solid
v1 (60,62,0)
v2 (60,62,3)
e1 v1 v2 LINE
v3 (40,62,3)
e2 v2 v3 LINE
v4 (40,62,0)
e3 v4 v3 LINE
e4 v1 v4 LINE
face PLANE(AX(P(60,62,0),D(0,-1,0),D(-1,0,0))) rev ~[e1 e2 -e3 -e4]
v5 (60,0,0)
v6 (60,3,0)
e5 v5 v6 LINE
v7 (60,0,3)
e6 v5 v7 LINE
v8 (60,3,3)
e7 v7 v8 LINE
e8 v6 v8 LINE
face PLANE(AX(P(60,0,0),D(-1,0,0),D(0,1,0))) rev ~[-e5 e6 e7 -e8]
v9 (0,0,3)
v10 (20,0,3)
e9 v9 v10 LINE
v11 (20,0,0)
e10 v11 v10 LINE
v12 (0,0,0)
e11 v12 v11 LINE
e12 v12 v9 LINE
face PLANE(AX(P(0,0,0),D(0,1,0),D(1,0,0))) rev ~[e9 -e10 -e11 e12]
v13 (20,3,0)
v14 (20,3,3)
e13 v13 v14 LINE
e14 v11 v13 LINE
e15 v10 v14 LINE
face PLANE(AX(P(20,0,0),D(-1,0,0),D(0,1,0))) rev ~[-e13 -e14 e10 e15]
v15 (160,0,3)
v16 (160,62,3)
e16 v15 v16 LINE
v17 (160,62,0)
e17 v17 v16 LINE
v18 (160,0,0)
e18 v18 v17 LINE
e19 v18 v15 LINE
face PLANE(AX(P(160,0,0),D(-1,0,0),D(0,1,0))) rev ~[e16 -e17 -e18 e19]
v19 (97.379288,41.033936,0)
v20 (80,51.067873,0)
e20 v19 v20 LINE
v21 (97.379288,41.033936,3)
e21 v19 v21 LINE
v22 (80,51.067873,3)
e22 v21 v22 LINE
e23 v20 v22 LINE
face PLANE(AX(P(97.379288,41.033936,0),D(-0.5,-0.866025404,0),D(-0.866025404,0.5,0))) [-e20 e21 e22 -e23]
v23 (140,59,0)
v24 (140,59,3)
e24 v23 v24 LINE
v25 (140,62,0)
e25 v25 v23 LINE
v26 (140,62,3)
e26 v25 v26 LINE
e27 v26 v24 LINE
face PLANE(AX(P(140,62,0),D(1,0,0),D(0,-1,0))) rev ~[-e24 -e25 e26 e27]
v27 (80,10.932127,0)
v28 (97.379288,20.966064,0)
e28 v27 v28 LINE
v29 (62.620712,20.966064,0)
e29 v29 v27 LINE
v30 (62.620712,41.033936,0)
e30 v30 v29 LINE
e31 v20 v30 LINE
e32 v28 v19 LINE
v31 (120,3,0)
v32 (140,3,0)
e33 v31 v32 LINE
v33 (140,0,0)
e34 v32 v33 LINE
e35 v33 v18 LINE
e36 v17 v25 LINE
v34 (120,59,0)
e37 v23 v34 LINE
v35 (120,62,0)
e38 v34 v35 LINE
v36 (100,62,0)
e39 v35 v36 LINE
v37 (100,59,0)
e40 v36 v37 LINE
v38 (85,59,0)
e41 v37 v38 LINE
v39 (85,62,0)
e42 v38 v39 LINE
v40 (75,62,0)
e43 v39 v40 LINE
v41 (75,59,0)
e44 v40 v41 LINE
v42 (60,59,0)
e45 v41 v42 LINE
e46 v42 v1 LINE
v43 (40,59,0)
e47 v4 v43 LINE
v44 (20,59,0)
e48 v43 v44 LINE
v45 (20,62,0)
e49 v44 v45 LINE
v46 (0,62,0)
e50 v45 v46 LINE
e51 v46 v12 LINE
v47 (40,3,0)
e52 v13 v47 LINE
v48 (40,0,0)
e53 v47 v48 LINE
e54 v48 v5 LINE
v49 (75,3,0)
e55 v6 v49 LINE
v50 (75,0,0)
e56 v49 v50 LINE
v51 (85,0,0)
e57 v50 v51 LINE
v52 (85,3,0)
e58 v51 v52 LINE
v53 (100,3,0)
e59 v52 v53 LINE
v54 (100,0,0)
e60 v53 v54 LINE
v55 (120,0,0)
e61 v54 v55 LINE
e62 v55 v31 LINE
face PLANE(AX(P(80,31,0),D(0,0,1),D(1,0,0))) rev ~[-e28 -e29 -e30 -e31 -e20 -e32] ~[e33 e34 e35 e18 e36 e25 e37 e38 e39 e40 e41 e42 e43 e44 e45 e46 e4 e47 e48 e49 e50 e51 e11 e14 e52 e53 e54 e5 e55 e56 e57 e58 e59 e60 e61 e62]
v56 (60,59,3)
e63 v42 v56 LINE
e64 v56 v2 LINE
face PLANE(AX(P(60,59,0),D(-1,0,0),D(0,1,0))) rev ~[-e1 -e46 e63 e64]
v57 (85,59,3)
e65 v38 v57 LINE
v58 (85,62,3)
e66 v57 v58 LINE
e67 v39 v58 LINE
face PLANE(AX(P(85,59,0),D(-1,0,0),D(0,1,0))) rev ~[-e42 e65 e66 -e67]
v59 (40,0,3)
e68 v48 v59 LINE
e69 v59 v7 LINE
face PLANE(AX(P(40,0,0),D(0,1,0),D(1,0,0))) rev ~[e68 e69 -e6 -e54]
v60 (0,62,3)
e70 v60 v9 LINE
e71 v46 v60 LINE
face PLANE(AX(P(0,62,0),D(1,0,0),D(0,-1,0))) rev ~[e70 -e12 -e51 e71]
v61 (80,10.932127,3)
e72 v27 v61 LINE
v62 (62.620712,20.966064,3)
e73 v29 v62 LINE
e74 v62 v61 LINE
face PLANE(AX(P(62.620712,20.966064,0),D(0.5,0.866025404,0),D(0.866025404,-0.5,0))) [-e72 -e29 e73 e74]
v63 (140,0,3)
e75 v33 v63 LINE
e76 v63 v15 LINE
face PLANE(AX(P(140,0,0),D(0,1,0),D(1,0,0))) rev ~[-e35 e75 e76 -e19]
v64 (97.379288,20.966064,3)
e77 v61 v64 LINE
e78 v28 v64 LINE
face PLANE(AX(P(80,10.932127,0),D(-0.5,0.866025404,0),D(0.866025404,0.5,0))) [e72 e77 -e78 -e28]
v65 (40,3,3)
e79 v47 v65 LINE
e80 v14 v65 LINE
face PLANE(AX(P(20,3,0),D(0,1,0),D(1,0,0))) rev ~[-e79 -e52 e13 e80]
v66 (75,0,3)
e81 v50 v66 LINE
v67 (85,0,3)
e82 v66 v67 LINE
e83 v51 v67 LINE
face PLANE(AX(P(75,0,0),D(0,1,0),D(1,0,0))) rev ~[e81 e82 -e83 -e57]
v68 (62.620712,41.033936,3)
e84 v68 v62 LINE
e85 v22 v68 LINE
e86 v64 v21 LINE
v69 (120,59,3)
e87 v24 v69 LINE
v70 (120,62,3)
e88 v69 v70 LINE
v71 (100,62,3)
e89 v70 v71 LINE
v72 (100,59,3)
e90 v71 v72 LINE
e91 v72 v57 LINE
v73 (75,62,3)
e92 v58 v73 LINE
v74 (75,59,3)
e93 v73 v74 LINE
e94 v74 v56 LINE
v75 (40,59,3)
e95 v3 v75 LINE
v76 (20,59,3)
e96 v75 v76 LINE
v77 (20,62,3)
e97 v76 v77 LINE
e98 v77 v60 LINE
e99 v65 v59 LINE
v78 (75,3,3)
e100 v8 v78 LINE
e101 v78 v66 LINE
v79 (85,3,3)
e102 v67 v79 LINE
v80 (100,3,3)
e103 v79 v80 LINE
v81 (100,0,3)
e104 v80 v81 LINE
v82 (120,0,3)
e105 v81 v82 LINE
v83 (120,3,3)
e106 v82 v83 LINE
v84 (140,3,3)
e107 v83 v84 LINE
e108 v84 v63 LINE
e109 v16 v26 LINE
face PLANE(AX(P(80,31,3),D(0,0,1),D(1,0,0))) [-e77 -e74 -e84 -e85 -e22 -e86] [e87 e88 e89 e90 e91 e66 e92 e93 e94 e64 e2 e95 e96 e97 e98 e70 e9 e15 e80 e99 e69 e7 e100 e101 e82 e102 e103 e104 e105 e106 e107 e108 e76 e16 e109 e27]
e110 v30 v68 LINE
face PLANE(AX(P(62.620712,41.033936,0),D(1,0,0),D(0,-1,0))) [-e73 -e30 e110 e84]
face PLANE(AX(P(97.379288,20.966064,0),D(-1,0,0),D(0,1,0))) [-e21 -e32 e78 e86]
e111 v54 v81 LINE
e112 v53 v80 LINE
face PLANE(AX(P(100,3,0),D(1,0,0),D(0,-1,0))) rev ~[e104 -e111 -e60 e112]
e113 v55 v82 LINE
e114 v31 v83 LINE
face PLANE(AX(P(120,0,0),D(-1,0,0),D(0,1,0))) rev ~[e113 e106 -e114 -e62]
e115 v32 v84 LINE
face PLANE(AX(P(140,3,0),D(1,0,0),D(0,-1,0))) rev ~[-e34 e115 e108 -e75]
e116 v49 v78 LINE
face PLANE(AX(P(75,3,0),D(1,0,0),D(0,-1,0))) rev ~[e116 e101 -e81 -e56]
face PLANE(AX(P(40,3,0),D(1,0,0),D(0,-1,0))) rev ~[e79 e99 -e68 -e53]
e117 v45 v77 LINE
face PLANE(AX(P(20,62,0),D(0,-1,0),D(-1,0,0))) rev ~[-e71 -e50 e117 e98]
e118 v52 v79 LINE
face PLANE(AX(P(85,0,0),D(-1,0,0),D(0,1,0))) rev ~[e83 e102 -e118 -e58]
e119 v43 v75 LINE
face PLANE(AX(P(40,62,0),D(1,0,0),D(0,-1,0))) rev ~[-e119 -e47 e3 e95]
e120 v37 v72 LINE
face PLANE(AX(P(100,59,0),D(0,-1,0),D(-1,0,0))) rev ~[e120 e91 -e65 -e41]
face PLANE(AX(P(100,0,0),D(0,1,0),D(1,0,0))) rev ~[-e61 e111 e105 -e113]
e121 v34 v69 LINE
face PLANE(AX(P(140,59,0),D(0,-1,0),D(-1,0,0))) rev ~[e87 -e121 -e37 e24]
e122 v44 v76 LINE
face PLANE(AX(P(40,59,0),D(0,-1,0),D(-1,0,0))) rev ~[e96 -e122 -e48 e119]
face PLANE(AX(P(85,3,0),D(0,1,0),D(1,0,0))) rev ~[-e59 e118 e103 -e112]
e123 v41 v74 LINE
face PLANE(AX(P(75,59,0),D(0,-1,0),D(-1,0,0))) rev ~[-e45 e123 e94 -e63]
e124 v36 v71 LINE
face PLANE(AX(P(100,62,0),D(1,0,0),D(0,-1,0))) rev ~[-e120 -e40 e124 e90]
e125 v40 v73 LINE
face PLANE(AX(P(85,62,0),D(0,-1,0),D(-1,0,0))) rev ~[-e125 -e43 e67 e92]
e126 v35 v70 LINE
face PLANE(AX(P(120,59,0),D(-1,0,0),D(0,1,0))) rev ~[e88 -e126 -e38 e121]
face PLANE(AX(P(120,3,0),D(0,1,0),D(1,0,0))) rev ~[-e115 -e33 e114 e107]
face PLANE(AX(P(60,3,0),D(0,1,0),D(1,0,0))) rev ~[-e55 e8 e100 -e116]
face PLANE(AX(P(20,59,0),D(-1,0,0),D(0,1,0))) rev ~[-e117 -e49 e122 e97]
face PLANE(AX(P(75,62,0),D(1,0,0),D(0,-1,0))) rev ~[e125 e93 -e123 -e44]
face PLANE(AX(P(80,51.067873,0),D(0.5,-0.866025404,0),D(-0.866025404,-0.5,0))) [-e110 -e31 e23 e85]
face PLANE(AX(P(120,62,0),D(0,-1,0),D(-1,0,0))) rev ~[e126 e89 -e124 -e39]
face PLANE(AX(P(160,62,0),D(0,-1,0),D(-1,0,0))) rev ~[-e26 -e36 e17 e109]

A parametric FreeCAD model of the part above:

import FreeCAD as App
import Part
import Sketcher
Q = App.Units.Quantity


def add_polygon(sketch, points):
    """Adds a closed chain of lines whose ends are joined by coincident constraints."""
    first, n = sketch.GeometryCount, len(points)
    for a, b in zip(points, points[1:] + points[:1]):
        sketch.addGeometry(Part.LineSegment(App.Vector(*a, 0), App.Vector(*b, 0)), False)
    for i in range(n):
        sketch.addConstraint(Sketcher.Constraint("Coincident", first + i, 2, first + (i + 1) % n, 1))

doc = App.newDocument("Part")
params = doc.addObject("Spreadsheet::Sheet", "Params")
for row, (alias, value) in enumerate([
    ("sketch1_width", "20 mm"),
    ("sketch1_width2", "15 mm"),
    ("sketch1_width3", "10 mm"),
    ("sketch1_height", "3 mm"),
    ("sketch1_height2", "62 mm"),
    ("pad1_length", "3 mm"),
], start=1):
    params.set(f"A{row}", alias)
    params.set(f"B{row}", "=" + value)
    params.setAlias(f"B{row}", alias)

body = doc.addObject("PartDesign::Body", "Body")

# Sketch on XY plane
sketch1 = body.newObject("Sketcher::SketchObject", "Sketch")
sketch1.AttachmentSupport = (doc.getObject("XY_Plane"), [""])
sketch1.MapMode = "FlatFace"
add_polygon(sketch1, [(20, 3), (40, 3), (40, 0), (60, 0), (60, 3), (75, 3), (75, 0), (85, 0), (85, 3), (100, 3), (100, 0), (120, 0), (120, 3), (140, 3), (140, 0), (160, 0), (160, 62), (140, 62), (140, 59), (120, 59), (120, 62), (100, 62), (100, 59), (85, 59), (85, 62), (75, 62), (75, 59), (60, 59), (60, 62), (40, 62), (40, 59), (20, 59), (20, 62), (0, 62), (0, 0), (20, 0)])  # lines 0-35
add_polygon(sketch1, [(62.620712, 41.033936), (80, 51.067873), (97.379288, 41.033936), (97.379288, 20.966064), (80, 10.932127), (62.620712, 20.966064)])  # lines 36-41
sketch1.addConstraint(Sketcher.Constraint("Horizontal", 0))
sketch1.addConstraint(Sketcher.Constraint("Vertical", 1))
sketch1.addConstraint(Sketcher.Constraint("Horizontal", 2))
sketch1.addConstraint(Sketcher.Constraint("Vertical", 3))
sketch1.addConstraint(Sketcher.Constraint("Horizontal", 4))
sketch1.addConstraint(Sketcher.Constraint("Vertical", 5))
sketch1.addConstraint(Sketcher.Constraint("Horizontal", 6))
sketch1.addConstraint(Sketcher.Constraint("Vertical", 7))
sketch1.addConstraint(Sketcher.Constraint("Horizontal", 8))
sketch1.addConstraint(Sketcher.Constraint("Vertical", 9))
sketch1.addConstraint(Sketcher.Constraint("Horizontal", 10))
sketch1.addConstraint(Sketcher.Constraint("Vertical", 11))
sketch1.addConstraint(Sketcher.Constraint("Horizontal", 12))
sketch1.addConstraint(Sketcher.Constraint("Vertical", 13))
sketch1.addConstraint(Sketcher.Constraint("Horizontal", 14))
sketch1.addConstraint(Sketcher.Constraint("Vertical", 15))
sketch1.addConstraint(Sketcher.Constraint("Horizontal", 16))
sketch1.addConstraint(Sketcher.Constraint("Vertical", 17))
sketch1.addConstraint(Sketcher.Constraint("Horizontal", 18))
sketch1.addConstraint(Sketcher.Constraint("Vertical", 19))
sketch1.addConstraint(Sketcher.Constraint("Horizontal", 20))
sketch1.addConstraint(Sketcher.Constraint("Vertical", 21))
sketch1.addConstraint(Sketcher.Constraint("Horizontal", 22))
sketch1.addConstraint(Sketcher.Constraint("Vertical", 23))
sketch1.addConstraint(Sketcher.Constraint("Horizontal", 24))
sketch1.addConstraint(Sketcher.Constraint("Vertical", 25))
sketch1.addConstraint(Sketcher.Constraint("Horizontal", 26))
sketch1.addConstraint(Sketcher.Constraint("Vertical", 27))
sketch1.addConstraint(Sketcher.Constraint("Horizontal", 28))
sketch1.addConstraint(Sketcher.Constraint("Vertical", 29))
sketch1.addConstraint(Sketcher.Constraint("Horizontal", 30))
sketch1.addConstraint(Sketcher.Constraint("Vertical", 31))
sketch1.addConstraint(Sketcher.Constraint("Horizontal", 32))
sketch1.addConstraint(Sketcher.Constraint("Vertical", 33))
sketch1.addConstraint(Sketcher.Constraint("Horizontal", 34))
sketch1.addConstraint(Sketcher.Constraint("Vertical", 35))
sketch1.addConstraint(Sketcher.Constraint("Vertical", 38))
sketch1.addConstraint(Sketcher.Constraint("Vertical", 41))
sketch1.addConstraint(Sketcher.Constraint("Coincident", 33, 2, -1, 1))
sketch1.addConstraint(Sketcher.Constraint("PointOnObject", 1, 2, -1))
sketch1.addConstraint(Sketcher.Constraint("PointOnObject", 5, 2, -1))
sketch1.addConstraint(Sketcher.Constraint("PointOnObject", 9, 2, -1))
sketch1.addConstraint(Sketcher.Constraint("PointOnObject", 13, 2, -1))
sketch1.addConstraint(Sketcher.Constraint("Parallel", 36, 39))
sketch1.addConstraint(Sketcher.Constraint("Parallel", 37, 40))
sketch1.addConstraint(Sketcher.Constraint("Horizontal", 0, 2, 3, 2))
sketch1.addConstraint(Sketcher.Constraint("Horizontal", 4, 2, 7, 2))
sketch1.addConstraint(Sketcher.Constraint("Horizontal", 8, 2, 11, 2))
sketch1.addConstraint(Sketcher.Constraint("Horizontal", 16, 2, 19, 2))
sketch1.addConstraint(Sketcher.Constraint("Horizontal", 18, 2, 21, 2))
sketch1.addConstraint(Sketcher.Constraint("Horizontal", 20, 2, 23, 2))
sketch1.addConstraint(Sketcher.Constraint("Horizontal", 22, 2, 25, 2))
sketch1.addConstraint(Sketcher.Constraint("Horizontal", 24, 2, 27, 2))
sketch1.addConstraint(Sketcher.Constraint("Horizontal", 26, 2, 29, 2))
sketch1.addConstraint(Sketcher.Constraint("Horizontal", 28, 2, 31, 2))
sketch1.addConstraint(Sketcher.Constraint("Horizontal", 38, 2, 40, 2))
sketch1.addConstraint(Sketcher.Constraint("Horizontal", 37, 2, 41, 2))
sketch1.addConstraint(Sketcher.Constraint("Vertical", 13, 2, 16, 2))
sketch1.addConstraint(Sketcher.Constraint("Vertical", 11, 2, 18, 2))
sketch1.addConstraint(Sketcher.Constraint("Vertical", 9, 2, 20, 2))
sketch1.addConstraint(Sketcher.Constraint("Vertical", 7, 2, 22, 2))
sketch1.addConstraint(Sketcher.Constraint("Vertical", 5, 2, 24, 2))
sketch1.addConstraint(Sketcher.Constraint("Vertical", 3, 2, 26, 2))
sketch1.addConstraint(Sketcher.Constraint("Vertical", 1, 2, 28, 2))
sketch1.addConstraint(Sketcher.Constraint("Vertical", 31, 2, 34, 2))
sketch1.addConstraint(Sketcher.Constraint("Vertical", 36, 2, 39, 2))
sketch1.addConstraint(Sketcher.Constraint("Equal", 0, 2))
sketch1.addConstraint(Sketcher.Constraint("Equal", 4, 8))
sketch1.addConstraint(Sketcher.Constraint("Equal", 2, 10))
sketch1.addConstraint(Sketcher.Constraint("Equal", 10, 12))
sketch1.addConstraint(Sketcher.Constraint("Equal", 12, 14))
sketch1.addConstraint(Sketcher.Constraint("Equal", 30, 32))
sketch1.addConstraint(Sketcher.Constraint("Equal", 13, 17))
sketch1.addConstraint(Sketcher.Constraint("DistanceX", 0, 1, 0, 2, Q("20 mm")))
sketch1.addConstraint(Sketcher.Constraint("DistanceX", 4, 1, 4, 2, Q("15 mm")))
sketch1.addConstraint(Sketcher.Constraint("DistanceX", 6, 1, 6, 2, Q("10 mm")))
sketch1.addConstraint(Sketcher.Constraint("DistanceY", 1, 2, 1, 1, Q("3 mm")))
sketch1.addConstraint(Sketcher.Constraint("DistanceY", 15, 1, 15, 2, Q("62 mm")))
sketch1.addConstraint(Sketcher.Constraint("Angle", 36, Q("30 deg")))
sketch1.addConstraint(Sketcher.Constraint("DistanceX", -1, 1, 36, 2, Q("80 mm")))
sketch1.addConstraint(Sketcher.Constraint("DistanceY", 38, 2, 38, 1, Q("20.067873 mm")))
sketch1.addConstraint(Sketcher.Constraint("Distance", 36, Q("20.067873 mm")))
sketch1.addConstraint(Sketcher.Constraint("DistanceY", -1, 1, 36, 2, Q("51.067873 mm")))
sketch1.setExpression("Constraints[115]", "Params.sketch1_width")
sketch1.setExpression("Constraints[116]", "Params.sketch1_width2")
sketch1.setExpression("Constraints[117]", "Params.sketch1_width3")
sketch1.setExpression("Constraints[118]", "Params.sketch1_height")
sketch1.setExpression("Constraints[119]", "Params.sketch1_height2")
pad1 = body.newObject("PartDesign::Pad", "Pad")
pad1.Profile = sketch1
pad1.setExpression("Length", "Params.pad1_length")

doc.recompute()
